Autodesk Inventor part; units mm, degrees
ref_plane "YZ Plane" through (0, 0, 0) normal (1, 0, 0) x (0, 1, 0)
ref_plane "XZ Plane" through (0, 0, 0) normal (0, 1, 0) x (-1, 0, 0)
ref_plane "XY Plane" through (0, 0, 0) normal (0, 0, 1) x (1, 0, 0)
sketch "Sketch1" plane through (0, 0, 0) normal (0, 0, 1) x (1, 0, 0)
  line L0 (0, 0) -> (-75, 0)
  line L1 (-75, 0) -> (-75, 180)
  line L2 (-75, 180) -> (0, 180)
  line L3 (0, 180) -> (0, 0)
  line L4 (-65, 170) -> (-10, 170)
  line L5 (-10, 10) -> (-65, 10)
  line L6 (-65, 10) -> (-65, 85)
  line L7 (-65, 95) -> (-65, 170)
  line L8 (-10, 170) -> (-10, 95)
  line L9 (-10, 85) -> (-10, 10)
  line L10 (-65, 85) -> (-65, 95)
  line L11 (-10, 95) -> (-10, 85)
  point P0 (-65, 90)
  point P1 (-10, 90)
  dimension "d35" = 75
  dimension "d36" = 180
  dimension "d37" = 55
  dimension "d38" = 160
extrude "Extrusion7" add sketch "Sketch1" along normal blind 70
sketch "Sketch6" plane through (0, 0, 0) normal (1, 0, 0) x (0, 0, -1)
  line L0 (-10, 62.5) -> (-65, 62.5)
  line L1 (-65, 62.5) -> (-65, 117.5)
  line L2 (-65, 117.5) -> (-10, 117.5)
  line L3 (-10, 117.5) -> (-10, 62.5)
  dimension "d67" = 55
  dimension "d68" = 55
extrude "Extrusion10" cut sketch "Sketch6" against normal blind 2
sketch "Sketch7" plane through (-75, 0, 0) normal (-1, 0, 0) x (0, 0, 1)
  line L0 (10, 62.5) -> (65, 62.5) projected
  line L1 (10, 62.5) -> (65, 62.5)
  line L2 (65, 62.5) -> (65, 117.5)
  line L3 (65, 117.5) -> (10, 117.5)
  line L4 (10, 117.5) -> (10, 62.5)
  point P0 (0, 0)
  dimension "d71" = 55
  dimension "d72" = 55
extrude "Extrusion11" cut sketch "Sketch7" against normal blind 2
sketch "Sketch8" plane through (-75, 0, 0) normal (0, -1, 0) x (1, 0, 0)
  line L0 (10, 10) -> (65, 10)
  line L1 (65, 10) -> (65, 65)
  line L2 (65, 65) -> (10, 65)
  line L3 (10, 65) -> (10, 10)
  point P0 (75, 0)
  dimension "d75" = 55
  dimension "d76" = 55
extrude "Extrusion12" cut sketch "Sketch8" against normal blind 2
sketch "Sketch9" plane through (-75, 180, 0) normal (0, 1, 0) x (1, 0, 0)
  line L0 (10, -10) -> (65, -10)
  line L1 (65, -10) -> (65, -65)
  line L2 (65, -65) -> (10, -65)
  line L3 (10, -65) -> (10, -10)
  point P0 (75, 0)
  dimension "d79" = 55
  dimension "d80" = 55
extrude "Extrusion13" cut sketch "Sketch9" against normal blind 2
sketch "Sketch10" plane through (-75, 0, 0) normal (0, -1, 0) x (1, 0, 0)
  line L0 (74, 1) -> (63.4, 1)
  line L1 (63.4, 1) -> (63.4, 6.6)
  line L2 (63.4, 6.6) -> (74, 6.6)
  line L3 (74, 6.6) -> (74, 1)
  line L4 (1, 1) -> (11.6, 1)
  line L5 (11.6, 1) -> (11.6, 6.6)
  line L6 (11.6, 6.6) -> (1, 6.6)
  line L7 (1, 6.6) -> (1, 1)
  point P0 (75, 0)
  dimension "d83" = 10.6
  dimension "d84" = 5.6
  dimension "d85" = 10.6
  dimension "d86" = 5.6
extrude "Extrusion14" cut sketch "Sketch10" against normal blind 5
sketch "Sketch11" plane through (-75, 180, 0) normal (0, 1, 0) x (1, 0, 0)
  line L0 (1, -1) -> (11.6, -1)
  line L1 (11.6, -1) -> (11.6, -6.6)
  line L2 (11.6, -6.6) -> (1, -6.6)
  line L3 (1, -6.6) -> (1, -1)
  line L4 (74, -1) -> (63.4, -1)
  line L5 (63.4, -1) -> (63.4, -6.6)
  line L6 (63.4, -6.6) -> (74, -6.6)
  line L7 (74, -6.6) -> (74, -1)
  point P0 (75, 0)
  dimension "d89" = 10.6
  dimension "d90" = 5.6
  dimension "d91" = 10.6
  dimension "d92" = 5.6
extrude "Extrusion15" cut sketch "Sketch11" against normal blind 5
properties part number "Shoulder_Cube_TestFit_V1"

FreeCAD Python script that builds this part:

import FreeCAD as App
import Part
import Sketcher

V = App.Vector
Q = App.Units.Quantity


def add_polygon(sketch, points):
    """Adds a closed chain of lines whose ends are joined by coincident constraints."""
    first, n = sketch.GeometryCount, len(points)
    for a, b in zip(points, points[1:] + points[:1]):
        sketch.addGeometry(Part.LineSegment(App.Vector(*a, 0), App.Vector(*b, 0)), False)
    for i in range(n):
        sketch.addConstraint(Sketcher.Constraint("Coincident", first + i, 2, first + (i + 1) % n, 1))

doc = App.newDocument("Part")
body = doc.addObject("PartDesign::Body", "Body")

# Sketch on XY plane
sketch1 = doc.addObject("Sketcher::SketchObject", "Sketch")
body.addObject(sketch1)
sketch1.AttachmentSupport = (doc.XY_Plane, [""])
sketch1.MapMode = "FlatFace"
add_polygon(sketch1, [(-75, 0), (0, 0), (0, 180), (-75, 180)])  # lines 0-3
add_polygon(sketch1, [(-65, 10), (-65, 170), (-10, 170), (-10, 10)])  # lines 4-7
sketch1.addConstraint(Sketcher.Constraint("Horizontal", 0))
sketch1.addConstraint(Sketcher.Constraint("Vertical", 1))
sketch1.addConstraint(Sketcher.Constraint("Horizontal", 2))
sketch1.addConstraint(Sketcher.Constraint("Vertical", 3))
sketch1.addConstraint(Sketcher.Constraint("Vertical", 4))
sketch1.addConstraint(Sketcher.Constraint("Horizontal", 5))
sketch1.addConstraint(Sketcher.Constraint("Vertical", 6))
sketch1.addConstraint(Sketcher.Constraint("Horizontal", 7))
sketch1.addConstraint(Sketcher.Constraint("Coincident", 0, 2, -1, 1))
sketch1.addConstraint(Sketcher.Constraint("DistanceX", 0, 1, 0, 2, Q("75 mm")))
sketch1.addConstraint(Sketcher.Constraint("DistanceX", 5, 1, 5, 2, Q("55 mm")))
sketch1.addConstraint(Sketcher.Constraint("DistanceY", 1, 1, 1, 2, Q("180 mm")))
sketch1.addConstraint(Sketcher.Constraint("DistanceY", 4, 1, 4, 2, Q("160 mm")))
sketch1.addConstraint(Sketcher.Constraint("DistanceX", 4, 2, -1, 1, Q("65 mm")))
sketch1.addConstraint(Sketcher.Constraint("DistanceY", -1, 1, 4, 2, Q("170 mm")))
pad1 = doc.addObject("PartDesign::Pad", "Pad")
body.addObject(pad1)
pad1.Profile = sketch1
pad1.Length = 70

# Sketch on YZ plane
sketch2 = doc.addObject("Sketcher::SketchObject", "Sketch001")
body.addObject(sketch2)
sketch2.AttachmentSupport = (doc.YZ_Plane, [""])
sketch2.MapMode = "FlatFace"
add_polygon(sketch2, [(62, 65), (62, 10), (118, 10), (118, 65)])  # lines 0-3
sketch2.addConstraint(Sketcher.Constraint("Vertical", 0))
sketch2.addConstraint(Sketcher.Constraint("Horizontal", 1))
sketch2.addConstraint(Sketcher.Constraint("Vertical", 2))
sketch2.addConstraint(Sketcher.Constraint("Horizontal", 3))
sketch2.addConstraint(Sketcher.Constraint("Equal", 3, 0))
sketch2.addConstraint(Sketcher.Constraint("DistanceX", 1, 1, 1, 2, Q("55 mm")))
sketch2.addConstraint(Sketcher.Constraint("DistanceY", -1, 1, 0, 2, Q("10 mm")))
sketch2.addConstraint(Sketcher.Constraint("DistanceX", -1, 1, 0, 2, Q("62.5 mm")))
pocket1 = doc.addObject("PartDesign::Pocket", "Pocket")
body.addObject(pocket1)
pocket1.Profile = sketch2
pocket1.Length = 2

# Sketch on YZ plane
sketch3 = doc.addObject("Sketcher::SketchObject", "Sketch002")
body.addObject(sketch3)
sketch3.AttachmentSupport = (doc.YZ_Plane, [""])
sketch3.MapMode = "FlatFace"
sketch3.AttachmentOffset = App.Placement(V(0, 0, -75), App.Rotation())
add_polygon(sketch3, [(118, 10), (62, 10), (62, 65), (118, 65)])  # lines 0-3
sketch3.addConstraint(Sketcher.Constraint("Horizontal", 0))
sketch3.addConstraint(Sketcher.Constraint("Vertical", 1))
sketch3.addConstraint(Sketcher.Constraint("Horizontal", 2))
sketch3.addConstraint(Sketcher.Constraint("Vertical", 3))
sketch3.addConstraint(Sketcher.Constraint("Equal", 2, 1))
sketch3.addConstraint(Sketcher.Constraint("DistanceX", 0, 2, 0, 1, Q("55 mm")))
sketch3.addConstraint(Sketcher.Constraint("DistanceY", -1, 1, 0, 2, Q("10 mm")))
sketch3.addConstraint(Sketcher.Constraint("DistanceX", -1, 1, 0, 2, Q("62.5 mm")))
pocket2 = doc.addObject("PartDesign::Pocket", "Pocket001")
body.addObject(pocket2)
pocket2.Profile = sketch3
pocket2.Length = 2
pocket2.Reversed = True

# Sketch on XZ plane
sketch4 = doc.addObject("Sketcher::SketchObject", "Sketch003")
body.addObject(sketch4)
sketch4.AttachmentSupport = (doc.XZ_Plane, [""])
sketch4.MapMode = "FlatFace"
add_polygon(sketch4, [(-65, 65), (-65, 10), (-10, 10), (-10, 65)])  # lines 0-3
sketch4.addConstraint(Sketcher.Constraint("Vertical", 0))
sketch4.addConstraint(Sketcher.Constraint("Horizontal", 1))
sketch4.addConstraint(Sketcher.Constraint("Vertical", 2))
sketch4.addConstraint(Sketcher.Constraint("Horizontal", 3))
sketch4.addConstraint(Sketcher.Constraint("Equal", 3, 0))
sketch4.addConstraint(Sketcher.Constraint("DistanceX", 1, 1, 1, 2, Q("55 mm")))
sketch4.addConstraint(Sketcher.Constraint("DistanceX", 0, 2, -1, 1, Q("65 mm")))
sketch4.addConstraint(Sketcher.Constraint("DistanceY", -1, 1, 0, 2, Q("10 mm")))
pocket3 = doc.addObject("PartDesign::Pocket", "Pocket002")
body.addObject(pocket3)
pocket3.Profile = sketch4
pocket3.Length = 2

# Sketch on XZ plane
sketch5 = doc.addObject("Sketcher::SketchObject", "Sketch004")
body.addObject(sketch5)
sketch5.AttachmentSupport = (doc.XZ_Plane, [""])
sketch5.MapMode = "FlatFace"
sketch5.AttachmentOffset = App.Placement(V(0, 0, -180), App.Rotation())
add_polygon(sketch5, [(-10, 10), (-65, 10), (-65, 65), (-10, 65)])  # lines 0-3
sketch5.addConstraint(Sketcher.Constraint("Horizontal", 0))
sketch5.addConstraint(Sketcher.Constraint("Vertical", 1))
sketch5.addConstraint(Sketcher.Constraint("Horizontal", 2))
sketch5.addConstraint(Sketcher.Constraint("Vertical", 3))
sketch5.addConstraint(Sketcher.Constraint("Equal", 2, 1))
sketch5.addConstraint(Sketcher.Constraint("DistanceX", 0, 2, 0, 1, Q("55 mm")))
sketch5.addConstraint(Sketcher.Constraint("DistanceX", 0, 2, -1, 1, Q("65 mm")))
sketch5.addConstraint(Sketcher.Constraint("DistanceY", -1, 1, 0, 2, Q("10 mm")))
pocket4 = doc.addObject("PartDesign::Pocket", "Pocket003")
body.addObject(pocket4)
pocket4.Profile = sketch5
pocket4.Length = 2
pocket4.Reversed = True

# Sketch on XZ plane
sketch6 = doc.addObject("Sketcher::SketchObject", "Sketch005")
body.addObject(sketch6)
sketch6.AttachmentSupport = (doc.XZ_Plane, [""])
sketch6.MapMode = "FlatFace"
add_polygon(sketch6, [(-12, 1), (-1, 1), (-1, 7), (-12, 7)])  # lines 0-3
add_polygon(sketch6, [(-74, 7), (-74, 1), (-63, 1), (-63, 7)])  # lines 4-7
sketch6.addConstraint(Sketcher.Constraint("Horizontal", 0))
sketch6.addConstraint(Sketcher.Constraint("Vertical", 1))
sketch6.addConstraint(Sketcher.Constraint("Horizontal", 2))
sketch6.addConstraint(Sketcher.Constraint("Vertical", 3))
sketch6.addConstraint(Sketcher.Constraint("Vertical", 4))
sketch6.addConstraint(Sketcher.Constraint("Horizontal", 5))
sketch6.addConstraint(Sketcher.Constraint("Vertical", 6))
sketch6.addConstraint(Sketcher.Constraint("Horizontal", 7))
sketch6.addConstraint(Sketcher.Constraint("Horizontal", 3, 2, 4, 2))
sketch6.addConstraint(Sketcher.Constraint("Horizontal", 2, 2, 6, 2))
sketch6.addConstraint(Sketcher.Constraint("Equal", 2, 5))
sketch6.addConstraint(Sketcher.Constraint("DistanceX", 0, 1, 0, 2, Q("10.6 mm")))
sketch6.addConstraint(Sketcher.Constraint("DistanceY", 1, 1, 1, 2, Q("5.6 mm")))
sketch6.addConstraint(Sketcher.Constraint("DistanceX", 0, 2, -1, 1, Q("1 mm")))
sketch6.addConstraint(Sketcher.Constraint("DistanceY", -1, 1, 0, 2, Q("1 mm")))
sketch6.addConstraint(Sketcher.Constraint("DistanceX", 4, 2, -1, 1, Q("74 mm")))
pocket5 = doc.addObject("PartDesign::Pocket", "Pocket004")
body.addObject(pocket5)
pocket5.Profile = sketch6
pocket5.Length = 5

# Sketch on XZ plane
sketch7 = doc.addObject("Sketcher::SketchObject", "Sketch006")
body.addObject(sketch7)
sketch7.AttachmentSupport = (doc.XZ_Plane, [""])
sketch7.MapMode = "FlatFace"
sketch7.AttachmentOffset = App.Placement(V(0, 0, -180), App.Rotation())
add_polygon(sketch7, [(-63, 1), (-74, 1), (-74, 7), (-63, 7)])  # lines 0-3
add_polygon(sketch7, [(-1, 7), (-1, 1), (-12, 1), (-12, 7)])  # lines 4-7
sketch7.addConstraint(Sketcher.Constraint("Horizontal", 0))
sketch7.addConstraint(Sketcher.Constraint("Vertical", 1))
sketch7.addConstraint(Sketcher.Constraint("Horizontal", 2))
sketch7.addConstraint(Sketcher.Constraint("Vertical", 3))
sketch7.addConstraint(Sketcher.Constraint("Vertical", 4))
sketch7.addConstraint(Sketcher.Constraint("Horizontal", 5))
sketch7.addConstraint(Sketcher.Constraint("Vertical", 6))
sketch7.addConstraint(Sketcher.Constraint("Horizontal", 7))
sketch7.addConstraint(Sketcher.Constraint("Horizontal", 3, 2, 4, 2))
sketch7.addConstraint(Sketcher.Constraint("Horizontal", 2, 2, 6, 2))
sketch7.addConstraint(Sketcher.Constraint("Equal", 2, 5))
sketch7.addConstraint(Sketcher.Constraint("DistanceX", 0, 2, 0, 1, Q("10.6 mm")))
sketch7.addConstraint(Sketcher.Constraint("DistanceY", 1, 1, 1, 2, Q("5.6 mm")))
sketch7.addConstraint(Sketcher.Constraint("DistanceX", 0, 2, -1, 1, Q("74 mm")))
sketch7.addConstraint(Sketcher.Constraint("DistanceY", -1, 1, 0, 2, Q("1 mm")))
sketch7.addConstraint(Sketcher.Constraint("DistanceX", 4, 2, -1, 1, Q("1 mm")))
pocket6 = doc.addObject("PartDesign::Pocket", "Pocket005")
body.addObject(pocket6)
pocket6.Profile = sketch7
pocket6.Length = 5
pocket6.Reversed = True

doc.recompute()
